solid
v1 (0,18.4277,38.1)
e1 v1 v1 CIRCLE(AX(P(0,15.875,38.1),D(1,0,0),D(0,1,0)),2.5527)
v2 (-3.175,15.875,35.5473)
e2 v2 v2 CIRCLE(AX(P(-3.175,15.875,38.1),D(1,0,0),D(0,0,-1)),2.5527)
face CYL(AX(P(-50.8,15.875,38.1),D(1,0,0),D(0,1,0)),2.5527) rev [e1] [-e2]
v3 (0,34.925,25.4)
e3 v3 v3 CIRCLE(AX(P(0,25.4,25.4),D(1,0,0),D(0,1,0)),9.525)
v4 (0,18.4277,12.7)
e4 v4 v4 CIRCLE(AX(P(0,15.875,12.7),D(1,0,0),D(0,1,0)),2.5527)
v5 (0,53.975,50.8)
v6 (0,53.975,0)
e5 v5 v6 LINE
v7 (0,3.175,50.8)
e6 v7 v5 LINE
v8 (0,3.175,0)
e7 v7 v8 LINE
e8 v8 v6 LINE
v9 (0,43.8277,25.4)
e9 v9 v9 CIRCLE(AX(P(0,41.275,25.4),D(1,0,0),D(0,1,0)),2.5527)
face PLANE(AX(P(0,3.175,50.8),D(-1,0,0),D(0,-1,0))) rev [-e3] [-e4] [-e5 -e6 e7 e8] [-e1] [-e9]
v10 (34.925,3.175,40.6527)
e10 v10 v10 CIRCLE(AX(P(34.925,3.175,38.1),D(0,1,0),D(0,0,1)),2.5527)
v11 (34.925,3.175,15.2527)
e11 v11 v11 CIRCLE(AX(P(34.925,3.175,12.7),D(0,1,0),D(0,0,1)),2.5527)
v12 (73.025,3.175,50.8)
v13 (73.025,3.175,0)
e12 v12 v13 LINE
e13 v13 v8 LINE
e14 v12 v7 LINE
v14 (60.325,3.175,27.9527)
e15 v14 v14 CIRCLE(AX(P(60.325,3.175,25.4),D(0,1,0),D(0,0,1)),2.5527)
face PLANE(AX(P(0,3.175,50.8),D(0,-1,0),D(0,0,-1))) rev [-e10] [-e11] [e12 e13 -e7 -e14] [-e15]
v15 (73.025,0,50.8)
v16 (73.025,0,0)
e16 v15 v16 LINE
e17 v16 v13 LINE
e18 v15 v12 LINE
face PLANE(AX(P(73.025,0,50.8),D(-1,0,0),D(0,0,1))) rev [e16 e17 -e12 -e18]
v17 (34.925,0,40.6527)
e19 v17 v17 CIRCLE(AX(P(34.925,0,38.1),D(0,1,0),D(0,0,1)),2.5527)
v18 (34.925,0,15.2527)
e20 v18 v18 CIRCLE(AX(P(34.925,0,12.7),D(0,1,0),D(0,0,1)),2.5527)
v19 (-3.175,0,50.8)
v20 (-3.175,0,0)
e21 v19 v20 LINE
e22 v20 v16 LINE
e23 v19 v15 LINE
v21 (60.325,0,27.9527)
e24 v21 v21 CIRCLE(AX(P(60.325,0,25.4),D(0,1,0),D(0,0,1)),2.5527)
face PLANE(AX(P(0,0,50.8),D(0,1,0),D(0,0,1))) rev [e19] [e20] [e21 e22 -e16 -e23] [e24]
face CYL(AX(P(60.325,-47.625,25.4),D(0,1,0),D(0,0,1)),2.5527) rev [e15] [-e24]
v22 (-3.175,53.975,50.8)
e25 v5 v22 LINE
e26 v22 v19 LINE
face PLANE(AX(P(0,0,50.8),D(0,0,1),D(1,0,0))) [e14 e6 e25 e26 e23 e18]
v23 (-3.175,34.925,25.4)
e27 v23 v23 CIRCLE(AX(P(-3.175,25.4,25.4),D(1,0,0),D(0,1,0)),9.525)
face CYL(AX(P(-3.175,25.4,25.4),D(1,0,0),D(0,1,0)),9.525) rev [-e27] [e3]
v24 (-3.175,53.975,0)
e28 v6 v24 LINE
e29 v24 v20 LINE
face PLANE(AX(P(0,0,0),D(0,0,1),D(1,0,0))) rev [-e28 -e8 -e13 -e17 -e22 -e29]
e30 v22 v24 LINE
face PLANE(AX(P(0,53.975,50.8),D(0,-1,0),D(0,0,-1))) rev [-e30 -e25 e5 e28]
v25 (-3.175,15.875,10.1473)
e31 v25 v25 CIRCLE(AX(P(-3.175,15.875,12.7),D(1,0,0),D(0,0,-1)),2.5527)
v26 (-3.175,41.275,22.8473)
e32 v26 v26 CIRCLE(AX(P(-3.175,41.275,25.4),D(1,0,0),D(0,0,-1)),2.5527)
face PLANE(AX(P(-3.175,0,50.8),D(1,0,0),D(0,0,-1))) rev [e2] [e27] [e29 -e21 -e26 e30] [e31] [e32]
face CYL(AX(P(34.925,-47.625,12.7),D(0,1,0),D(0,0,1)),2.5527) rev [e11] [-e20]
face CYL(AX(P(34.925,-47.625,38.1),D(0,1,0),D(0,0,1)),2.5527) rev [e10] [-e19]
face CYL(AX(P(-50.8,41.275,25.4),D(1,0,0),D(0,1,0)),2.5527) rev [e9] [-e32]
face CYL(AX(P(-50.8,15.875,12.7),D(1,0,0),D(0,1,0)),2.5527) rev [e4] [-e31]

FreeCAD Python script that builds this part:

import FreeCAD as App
import Part
import Sketcher

V = App.Vector
Q = App.Units.Quantity


def add_polygon(sketch, points):
    """Adds a closed chain of lines whose ends are joined by coincident constraints."""
    first, n = sketch.GeometryCount, len(points)
    for a, b in zip(points, points[1:] + points[:1]):
        sketch.addGeometry(Part.LineSegment(App.Vector(*a, 0), App.Vector(*b, 0)), False)
    for i in range(n):
        sketch.addConstraint(Sketcher.Constraint("Coincident", first + i, 2, first + (i + 1) % n, 1))

doc = App.newDocument("Part")
params = doc.addObject("Spreadsheet::Sheet", "Params")
for row, (alias, value) in enumerate([
    ("sketch1_width", "3 in"),
    ("sketch1_height", "2 in"),
    ("sketch1_width2", "2.875 in"),
    ("pad1_length", "2 in"),
    ("sketch2_diameter", "0.201 in"),
    ("pocket1_length", "2 in"),
    ("sketch3_diameter", "0.201 in"),
    ("pocket2_length", "2 in"),
    ("sketch4_diameter", "0.75 in"),
    ("pocket3_length", "0.125 in"),
], start=1):
    params.set(f"A{row}", alias)
    params.set(f"B{row}", "=" + value)
    params.setAlias(f"B{row}", alias)

body = doc.addObject("PartDesign::Body", "Body")

# Sketch on XY plane
sketch1 = body.newObject("Sketcher::SketchObject", "Sketch")
sketch1.AttachmentSupport = (doc.getObject("XY_Plane"), [""])
sketch1.MapMode = "FlatFace"
add_polygon(sketch1, [(-3.2, 0), (73, 0), (73, 3.2), (0, 3.2), (0, 54), (-3.2, 54)])  # lines 0-5
sketch1.addConstraint(Sketcher.Constraint("Horizontal", 0))
sketch1.addConstraint(Sketcher.Constraint("Vertical", 1))
sketch1.addConstraint(Sketcher.Constraint("Horizontal", 2))
sketch1.addConstraint(Sketcher.Constraint("Vertical", 3))
sketch1.addConstraint(Sketcher.Constraint("Horizontal", 4))
sketch1.addConstraint(Sketcher.Constraint("Vertical", 5))
sketch1.addConstraint(Sketcher.Constraint("PointOnObject", 0, 2, -1))
sketch1.addConstraint(Sketcher.Constraint("PointOnObject", 2, 2, -2))
sketch1.addConstraint(Sketcher.Constraint("Equal", 4, 1))
sketch1.addConstraint(Sketcher.Constraint("DistanceX", 0, 1, 0, 2, Q("3 in")))
sketch1.addConstraint(Sketcher.Constraint("DistanceY", 3, 1, 3, 2, Q("2 in")))
sketch1.addConstraint(Sketcher.Constraint("DistanceX", 2, 2, 2, 1, Q("2.875 in")))
sketch1.setExpression("Constraints[15]", "Params.sketch1_width")
sketch1.setExpression("Constraints[16]", "Params.sketch1_height")
sketch1.setExpression("Constraints[17]", "Params.sketch1_width2")
pad1 = body.newObject("PartDesign::Pad", "Pad")
pad1.Profile = sketch1
pad1.setExpression("Length", "Params.pad1_length")

# Sketch on YZ plane
sketch2 = body.newObject("Sketcher::SketchObject", "Sketch001")
sketch2.AttachmentSupport = (doc.getObject("YZ_Plane"), [""])
sketch2.MapMode = "FlatFace"
sketch2.addGeometry(Part.Circle(V(41.3, 25.4, 0), V(0, 0, 1), 2.6), False)
sketch2.addGeometry(Part.Circle(V(15.9, 38.1, 0), V(0, 0, 1), 2.6), False)
sketch2.addGeometry(Part.Circle(V(15.9, 12.7, 0), V(0, 0, 1), 2.6), False)
sketch2.addConstraint(Sketcher.Constraint("Equal", 0, 1))
sketch2.addConstraint(Sketcher.Constraint("Equal", 1, 2))
sketch2.addConstraint(Sketcher.Constraint("Vertical", 1, 3, 2, 3))
sketch2.addConstraint(Sketcher.Constraint("Diameter", 0, Q("0.201 in")))
sketch2.addConstraint(Sketcher.Constraint("DistanceY", -1, 1, 0, 3, Q("1 in")))
sketch2.addConstraint(Sketcher.Constraint("DistanceX", 1, 3, 0, 3, Q("1 in")))
sketch2.addConstraint(Sketcher.Constraint("DistanceY", 2, 3, 1, 3, Q("1 in")))
sketch2.addConstraint(Sketcher.Constraint("DistanceY", -1, 1, 1, 3, Q("1.5 in")))
sketch2.addConstraint(Sketcher.Constraint("DistanceX", -1, 1, 0, 3, Q("1.625 in")))
sketch2.setExpression("Constraints[3]", "Params.sketch2_diameter")
pocket1 = body.newObject("PartDesign::Pocket", "Pocket")
pocket1.Profile = sketch2
pocket1.setExpression("Length", "Params.pocket1_length")

# Sketch on XZ plane
sketch3 = body.newObject("Sketcher::SketchObject", "Sketch002")
sketch3.AttachmentSupport = (doc.getObject("XZ_Plane"), [""])
sketch3.MapMode = "FlatFace"
sketch3.AttachmentOffset = App.Placement(V(0, 0, -0.125 * 25.4), App.Rotation())
sketch3.addGeometry(Part.Circle(V(60.3, 25.4, 0), V(0, 0, 1), 2.6), False)
sketch3.addGeometry(Part.Circle(V(34.9, 12.7, 0), V(0, 0, 1), 2.6), False)
sketch3.addGeometry(Part.Circle(V(34.9, 38.1, 0), V(0, 0, 1), 2.6), False)
sketch3.addConstraint(Sketcher.Constraint("Equal", 0, 1))
sketch3.addConstraint(Sketcher.Constraint("Equal", 1, 2))
sketch3.addConstraint(Sketcher.Constraint("Vertical", 1, 3, 2, 3))
sketch3.addConstraint(Sketcher.Constraint("Diameter", 0, Q("0.201 in")))
sketch3.addConstraint(Sketcher.Constraint("DistanceY", -1, 1, 0, 3, Q("1 in")))
sketch3.addConstraint(Sketcher.Constraint("DistanceX", 1, 3, 0, 3, Q("1 in")))
sketch3.addConstraint(Sketcher.Constraint("DistanceY", 1, 3, 2, 3, Q("1 in")))
sketch3.addConstraint(Sketcher.Constraint("DistanceY", -1, 1, 1, 3, Q("0.5 in")))
sketch3.addConstraint(Sketcher.Constraint("DistanceX", -1, 1, 0, 3, Q("2.375 in")))
sketch3.setExpression("Constraints[3]", "Params.sketch3_diameter")
pocket2 = body.newObject("PartDesign::Pocket", "Pocket001")
pocket2.Profile = sketch3
pocket2.setExpression("Length", "Params.pocket2_length")
pocket2.Reversed = True

# Sketch on YZ plane
sketch4 = body.newObject("Sketcher::SketchObject", "Sketch003")
sketch4.AttachmentSupport = (doc.getObject("YZ_Plane"), [""])
sketch4.MapMode = "FlatFace"
sketch4.addGeometry(Part.Circle(V(25, 25, 0), V(0, 0, 1), 10), False)
sketch4.addConstraint(Sketcher.Constraint("Diameter", 0, Q("0.75 in")))
sketch4.addConstraint(Sketcher.Constraint("DistanceX", -1, 1, 0, 3, Q("1 in")))
sketch4.addConstraint(Sketcher.Constraint("DistanceY", -1, 1, 0, 3, Q("1 in")))
sketch4.setExpression("Constraints[0]", "Params.sketch4_diameter")
pocket3 = body.newObject("PartDesign::Pocket", "Pocket002")
pocket3.Profile = sketch4
pocket3.setExpression("Length", "Params.pocket3_length")

doc.recompute()
